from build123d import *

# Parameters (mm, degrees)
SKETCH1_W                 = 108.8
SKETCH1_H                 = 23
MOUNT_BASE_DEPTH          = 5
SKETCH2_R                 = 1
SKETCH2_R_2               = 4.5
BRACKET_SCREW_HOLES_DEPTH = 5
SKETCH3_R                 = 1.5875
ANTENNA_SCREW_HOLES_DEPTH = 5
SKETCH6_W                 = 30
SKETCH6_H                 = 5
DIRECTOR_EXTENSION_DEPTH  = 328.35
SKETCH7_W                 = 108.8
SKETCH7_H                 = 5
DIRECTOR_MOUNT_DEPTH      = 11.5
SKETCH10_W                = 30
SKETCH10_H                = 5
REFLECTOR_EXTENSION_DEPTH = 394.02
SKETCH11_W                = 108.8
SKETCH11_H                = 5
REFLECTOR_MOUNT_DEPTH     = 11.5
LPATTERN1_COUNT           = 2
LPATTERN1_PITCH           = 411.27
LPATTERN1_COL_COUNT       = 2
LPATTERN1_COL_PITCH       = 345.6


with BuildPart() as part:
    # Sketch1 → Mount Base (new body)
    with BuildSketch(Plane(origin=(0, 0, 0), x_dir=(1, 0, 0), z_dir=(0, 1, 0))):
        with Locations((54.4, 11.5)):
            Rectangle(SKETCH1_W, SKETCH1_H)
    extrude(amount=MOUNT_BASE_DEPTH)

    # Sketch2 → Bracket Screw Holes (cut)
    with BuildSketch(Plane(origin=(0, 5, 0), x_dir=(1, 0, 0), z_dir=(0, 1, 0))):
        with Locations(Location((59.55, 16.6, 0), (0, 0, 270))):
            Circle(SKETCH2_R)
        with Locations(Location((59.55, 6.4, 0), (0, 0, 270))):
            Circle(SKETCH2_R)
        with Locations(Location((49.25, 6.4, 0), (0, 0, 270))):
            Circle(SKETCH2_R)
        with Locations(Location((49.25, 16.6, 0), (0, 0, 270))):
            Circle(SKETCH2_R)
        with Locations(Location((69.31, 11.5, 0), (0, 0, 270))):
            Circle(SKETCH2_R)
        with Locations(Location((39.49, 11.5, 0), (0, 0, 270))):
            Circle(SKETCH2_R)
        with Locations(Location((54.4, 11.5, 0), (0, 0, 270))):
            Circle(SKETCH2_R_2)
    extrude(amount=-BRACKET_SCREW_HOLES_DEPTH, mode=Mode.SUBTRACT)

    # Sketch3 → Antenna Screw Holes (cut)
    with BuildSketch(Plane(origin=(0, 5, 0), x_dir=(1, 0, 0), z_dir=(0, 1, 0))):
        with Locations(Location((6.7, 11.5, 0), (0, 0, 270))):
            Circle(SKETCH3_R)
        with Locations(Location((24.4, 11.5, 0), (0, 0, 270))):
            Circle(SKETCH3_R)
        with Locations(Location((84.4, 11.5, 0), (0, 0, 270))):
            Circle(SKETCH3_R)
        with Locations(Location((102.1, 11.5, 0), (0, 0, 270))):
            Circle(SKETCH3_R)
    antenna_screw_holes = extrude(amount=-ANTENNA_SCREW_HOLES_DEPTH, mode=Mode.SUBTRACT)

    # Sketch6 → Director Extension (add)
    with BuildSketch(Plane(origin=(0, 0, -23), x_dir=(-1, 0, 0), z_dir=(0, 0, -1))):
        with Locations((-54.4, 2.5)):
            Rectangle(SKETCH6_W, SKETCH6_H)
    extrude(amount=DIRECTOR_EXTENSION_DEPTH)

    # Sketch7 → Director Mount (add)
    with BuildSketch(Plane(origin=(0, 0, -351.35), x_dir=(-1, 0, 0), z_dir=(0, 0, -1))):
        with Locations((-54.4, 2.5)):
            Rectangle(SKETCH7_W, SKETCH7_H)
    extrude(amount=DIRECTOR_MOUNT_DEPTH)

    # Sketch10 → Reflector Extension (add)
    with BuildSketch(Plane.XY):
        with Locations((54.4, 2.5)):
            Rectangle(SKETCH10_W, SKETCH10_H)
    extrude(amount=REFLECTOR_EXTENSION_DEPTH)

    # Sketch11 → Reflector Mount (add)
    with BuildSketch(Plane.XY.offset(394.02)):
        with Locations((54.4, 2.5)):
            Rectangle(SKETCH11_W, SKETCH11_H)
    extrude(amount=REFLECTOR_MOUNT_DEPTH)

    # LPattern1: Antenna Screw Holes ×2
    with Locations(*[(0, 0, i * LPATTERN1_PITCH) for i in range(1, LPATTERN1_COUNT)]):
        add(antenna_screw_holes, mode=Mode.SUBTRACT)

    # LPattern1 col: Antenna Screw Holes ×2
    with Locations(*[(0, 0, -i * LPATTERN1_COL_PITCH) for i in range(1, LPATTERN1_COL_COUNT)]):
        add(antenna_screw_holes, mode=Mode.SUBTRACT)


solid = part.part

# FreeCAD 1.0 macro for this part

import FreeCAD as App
import Part
import Sketcher
from FreeCAD import Vector

doc = App.newDocument("Part")
body = doc.addObject("PartDesign::Body", "Body")

# Sketch on XZ plane
sketch1 = body.newObject("Sketcher::SketchObject", "Sketch")
sketch1.AttachmentSupport = (doc.getObject("XZ_Plane"), [""])
sketch1.MapMode = "FlatFace"
sketch1.addGeometry(Part.LineSegment(Vector(0, -23, 0), Vector(0, 0, 0)), False)
sketch1.addGeometry(Part.LineSegment(Vector(0, 0, 0), Vector(109, 0, 0)), False)
sketch1.addGeometry(Part.LineSegment(Vector(109, 0, 0), Vector(109, -23, 0)), False)
sketch1.addGeometry(Part.LineSegment(Vector(109, -23, 0), Vector(0, -23, 0)), False)
sketch1.addConstraint(Sketcher.Constraint("Coincident", 0, 2, 1, 1))
sketch1.addConstraint(Sketcher.Constraint("Coincident", 1, 2, 2, 1))
sketch1.addConstraint(Sketcher.Constraint("Coincident", 2, 2, 3, 1))
sketch1.addConstraint(Sketcher.Constraint("Coincident", 3, 2, 0, 1))
sketch1.addConstraint(Sketcher.Constraint("Vertical", 0))
sketch1.addConstraint(Sketcher.Constraint("Horizontal", 1))
sketch1.addConstraint(Sketcher.Constraint("Vertical", 2))
sketch1.addConstraint(Sketcher.Constraint("Horizontal", 3))
sketch1.addConstraint(Sketcher.Constraint("Coincident", 0, 2, -1, 1))
sketch1.addConstraint(Sketcher.Constraint("DistanceY", 0, 1, 0, 2, 23.0))
sketch1.addConstraint(Sketcher.Constraint("DistanceX", 1, 1, 1, 2, 108.8))
pad1 = body.newObject("PartDesign::Pad", "Pad")
pad1.Profile = sketch1
pad1.Length = 5
pad1.Reversed = True

# Sketch on XZ plane
sketch2 = body.newObject("Sketcher::SketchObject", "Sketch001")
sketch2.AttachmentSupport = (doc.getObject("XZ_Plane"), [""])
sketch2.MapMode = "FlatFace"
sketch2.AttachmentOffset = App.Placement(Vector(0, 0, -5), App.Rotation())
sketch2.addGeometry(Part.Circle(Vector(59.5, -16.6, 0), Vector(0, 0, 1), 1), False)
sketch2.addGeometry(Part.Circle(Vector(59.5, -6.4, 0), Vector(0, 0, 1), 1), False)
sketch2.addGeometry(Part.Circle(Vector(49.2, -6.4, 0), Vector(0, 0, 1), 1), False)
sketch2.addGeometry(Part.Circle(Vector(49.2, -16.6, 0), Vector(0, 0, 1), 1), False)
sketch2.addGeometry(Part.Circle(Vector(69.3, -11.5, 0), Vector(0, 0, 1), 1), False)
sketch2.addGeometry(Part.Circle(Vector(39.5, -11.5, 0), Vector(0, 0, 1), 1), False)
sketch2.addGeometry(Part.Circle(Vector(54.4, -11.5, 0), Vector(0, 0, 1), 4.5), False)
sketch2.addConstraint(Sketcher.Constraint("Equal", 0, 1))
sketch2.addConstraint(Sketcher.Constraint("Equal", 1, 2))
sketch2.addConstraint(Sketcher.Constraint("Equal", 2, 3))
sketch2.addConstraint(Sketcher.Constraint("Equal", 3, 4))
sketch2.addConstraint(Sketcher.Constraint("Equal", 4, 5))
sketch2.addConstraint(Sketcher.Constraint("Horizontal", 1, 3, 2, 3))
sketch2.addConstraint(Sketcher.Constraint("Horizontal", 0, 3, 3, 3))
sketch2.addConstraint(Sketcher.Constraint("Horizontal", 4, 3, 5, 3))
sketch2.addConstraint(Sketcher.Constraint("Horizontal", 5, 3, 6, 3))
sketch2.addConstraint(Sketcher.Constraint("Vertical", 0, 3, 1, 3))
sketch2.addConstraint(Sketcher.Constraint("Vertical", 2, 3, 3, 3))
sketch2.addConstraint(Sketcher.Constraint("Diameter", 0, 2.0))
sketch2.addConstraint(Sketcher.Constraint("Diameter", 6, 9.0))
sketch2.addConstraint(Sketcher.Constraint("DistanceY", 0, 3, -1, 1, 16.6))
sketch2.addConstraint(Sketcher.Constraint("DistanceY", 1, 3, -1, 1, 6.4))
sketch2.addConstraint(Sketcher.Constraint("DistanceY", 4, 3, -1, 1, 11.5))
sketch2.addConstraint(Sketcher.Constraint("DistanceX", -1, 1, 6, 3, 54.4))
sketch2.addConstraint(Sketcher.Constraint("DistanceX", 2, 3, 1, 3, 10.3))
sketch2.addConstraint(Sketcher.Constraint("DistanceX", -1, 1, 0, 3, 59.55))
sketch2.addConstraint(Sketcher.Constraint("DistanceX", -1, 1, 4, 3, 69.31))
sketch2.addConstraint(Sketcher.Constraint("DistanceX", -1, 1, 5, 3, 39.49))
pocket1 = body.newObject("PartDesign::Pocket", "Pocket")
pocket1.Profile = sketch2
pocket1.Length = 5
pocket1.Reversed = True

# Sketch on XZ plane
sketch3 = body.newObject("Sketcher::SketchObject", "Sketch002")
sketch3.AttachmentSupport = (doc.getObject("XZ_Plane"), [""])
sketch3.MapMode = "FlatFace"
sketch3.AttachmentOffset = App.Placement(Vector(0, 0, -5), App.Rotation())
sketch3.addGeometry(Part.Circle(Vector(6.7, -11.5, 0), Vector(0, 0, 1), 1.6), False)
sketch3.addGeometry(Part.Circle(Vector(24.4, -11.5, 0), Vector(0, 0, 1), 1.6), False)
sketch3.addGeometry(Part.Circle(Vector(84.4, -11.5, 0), Vector(0, 0, 1), 1.6), False)
sketch3.addGeometry(Part.Circle(Vector(102.1, -11.5, 0), Vector(0, 0, 1), 1.6), False)
sketch3.addConstraint(Sketcher.Constraint("Equal", 0, 1))
sketch3.addConstraint(Sketcher.Constraint("Equal", 1, 2))
sketch3.addConstraint(Sketcher.Constraint("Equal", 2, 3))
sketch3.addConstraint(Sketcher.Constraint("Horizontal", 0, 3, 1, 3))
sketch3.addConstraint(Sketcher.Constraint("Horizontal", 1, 3, 2, 3))
sketch3.addConstraint(Sketcher.Constraint("Horizontal", 2, 3, 3, 3))
sketch3.addConstraint(Sketcher.Constraint("Diameter", 0, 3.175))
sketch3.addConstraint(Sketcher.Constraint("DistanceX", 1, 3, 2, 3, 60.0))
sketch3.addConstraint(Sketcher.Constraint("DistanceX", -1, 1, 0, 3, 6.7))
sketch3.addConstraint(Sketcher.Constraint("DistanceY", 0, 3, -1, 1, 11.5))
sketch3.addConstraint(Sketcher.Constraint("DistanceX", -1, 1, 1, 3, 24.4))
sketch3.addConstraint(Sketcher.Constraint("DistanceX", -1, 1, 3, 3, 102.1))
pocket2 = body.newObject("PartDesign::Pocket", "Pocket001")
pocket2.Profile = sketch3
pocket2.Length = 5
pocket2.Reversed = True

# Sketch on XY plane
sketch4 = body.newObject("Sketcher::SketchObject", "Sketch003")
sketch4.AttachmentSupport = (doc.getObject("XY_Plane"), [""])
sketch4.MapMode = "FlatFace"
sketch4.AttachmentOffset = App.Placement(Vector(0, 0, -23), App.Rotation())
sketch4.addGeometry(Part.LineSegment(Vector(69, 5, 0), Vector(69, 0, 0)), False)
sketch4.addGeometry(Part.LineSegment(Vector(69, 0, 0), Vector(39, 0, 0)), False)
sketch4.addGeometry(Part.LineSegment(Vector(39, 0, 0), Vector(39, 5, 0)), False)
sketch4.addGeometry(Part.LineSegment(Vector(39, 5, 0), Vector(69, 5, 0)), False)
sketch4.addConstraint(Sketcher.Constraint("Coincident", 0, 2, 1, 1))
sketch4.addConstraint(Sketcher.Constraint("Coincident", 1, 2, 2, 1))
sketch4.addConstraint(Sketcher.Constraint("Coincident", 2, 2, 3, 1))
sketch4.addConstraint(Sketcher.Constraint("Coincident", 3, 2, 0, 1))
sketch4.addConstraint(Sketcher.Constraint("Vertical", 0))
sketch4.addConstraint(Sketcher.Constraint("Horizontal", 1))
sketch4.addConstraint(Sketcher.Constraint("Vertical", 2))
sketch4.addConstraint(Sketcher.Constraint("Horizontal", 3))
sketch4.addConstraint(Sketcher.Constraint("PointOnObject", 0, 2, -1))
sketch4.addConstraint(Sketcher.Constraint("DistanceX", 1, 2, 1, 1, 30.0))
sketch4.addConstraint(Sketcher.Constraint("DistanceY", 0, 2, 0, 1, 5.0))
sketch4.addConstraint(Sketcher.Constraint("DistanceX", -1, 1, 0, 2, 69.4))
pad2 = body.newObject("PartDesign::Pad", "Pad001")
pad2.Profile = sketch4
pad2.Length = 328.35
pad2.Reversed = True

# Sketch on XY plane
sketch5 = body.newObject("Sketcher::SketchObject", "Sketch004")
sketch5.AttachmentSupport = (doc.getObject("XY_Plane"), [""])
sketch5.MapMode = "FlatFace"
sketch5.AttachmentOffset = App.Placement(Vector(0, 0, -351.35), App.Rotation())
sketch5.addGeometry(Part.LineSegment(Vector(109, 5, 0), Vector(109, 0, 0)), False)
sketch5.addGeometry(Part.LineSegment(Vector(109, 0, 0), Vector(0, 0, 0)), False)
sketch5.addGeometry(Part.LineSegment(Vector(0, 0, 0), Vector(0, 5, 0)), False)
sketch5.addGeometry(Part.LineSegment(Vector(0, 5, 0), Vector(109, 5, 0)), False)
sketch5.addConstraint(Sketcher.Constraint("Coincident", 0, 2, 1, 1))
sketch5.addConstraint(Sketcher.Constraint("Coincident", 1, 2, 2, 1))
sketch5.addConstraint(Sketcher.Constraint("Coincident", 2, 2, 3, 1))
sketch5.addConstraint(Sketcher.Constraint("Coincident", 3, 2, 0, 1))
sketch5.addConstraint(Sketcher.Constraint("Vertical", 0))
sketch5.addConstraint(Sketcher.Constraint("Horizontal", 1))
sketch5.addConstraint(Sketcher.Constraint("Vertical", 2))
sketch5.addConstraint(Sketcher.Constraint("Horizontal", 3))
sketch5.addConstraint(Sketcher.Constraint("Coincident", 1, 2, -1, 1))
sketch5.addConstraint(Sketcher.Constraint("DistanceY", 0, 2, 0, 1, 5.0))
sketch5.addConstraint(Sketcher.Constraint("DistanceX", 1, 2, 1, 1, 108.8))
pad3 = body.newObject("PartDesign::Pad", "Pad002")
pad3.Profile = sketch5
pad3.Length = 11.5
pad3.Reversed = True

# Sketch on XY plane
sketch6 = body.newObject("Sketcher::SketchObject", "Sketch005")
sketch6.AttachmentSupport = (doc.getObject("XY_Plane"), [""])
sketch6.MapMode = "FlatFace"
sketch6.addGeometry(Part.LineSegment(Vector(39, 5, 0), Vector(39, 0, 0)), False)
sketch6.addGeometry(Part.LineSegment(Vector(39, 0, 0), Vector(69, 0, 0)), False)
sketch6.addGeometry(Part.LineSegment(Vector(69, 0, 0), Vector(69, 5, 0)), False)
sketch6.addGeometry(Part.LineSegment(Vector(69, 5, 0), Vector(39, 5, 0)), False)
sketch6.addConstraint(Sketcher.Constraint("Coincident", 0, 2, 1, 1))
sketch6.addConstraint(Sketcher.Constraint("Coincident", 1, 2, 2, 1))
sketch6.addConstraint(Sketcher.Constraint("Coincident", 2, 2, 3, 1))
sketch6.addConstraint(Sketcher.Constraint("Coincident", 3, 2, 0, 1))
sketch6.addConstraint(Sketcher.Constraint("Vertical", 0))
sketch6.addConstraint(Sketcher.Constraint("Horizontal", 1))
sketch6.addConstraint(Sketcher.Constraint("Vertical", 2))
sketch6.addConstraint(Sketcher.Constraint("Horizontal", 3))
sketch6.addConstraint(Sketcher.Constraint("PointOnObject", 0, 2, -1))
sketch6.addConstraint(Sketcher.Constraint("DistanceX", 1, 1, 1, 2, 30.0))
sketch6.addConstraint(Sketcher.Constraint("DistanceY", 0, 2, 0, 1, 5.0))
sketch6.addConstraint(Sketcher.Constraint("DistanceX", -1, 1, 0, 2, 39.4))
pad4 = body.newObject("PartDesign::Pad", "Pad003")
pad4.Profile = sketch6
pad4.Length = 394.02

# Sketch on XY plane
sketch7 = body.newObject("Sketcher::SketchObject", "Sketch006")
sketch7.AttachmentSupport = (doc.getObject("XY_Plane"), [""])
sketch7.MapMode = "FlatFace"
sketch7.AttachmentOffset = App.Placement(Vector(0, 0, 394.02), App.Rotation())
sketch7.addGeometry(Part.LineSegment(Vector(0, 5, 0), Vector(0, 0, 0)), False)
sketch7.addGeometry(Part.LineSegment(Vector(0, 0, 0), Vector(109, 0, 0)), False)
sketch7.addGeometry(Part.LineSegment(Vector(109, 0, 0), Vector(109, 5, 0)), False)
sketch7.addGeometry(Part.LineSegment(Vector(109, 5, 0), Vector(0, 5, 0)), False)
sketch7.addConstraint(Sketcher.Constraint("Coincident", 0, 2, 1, 1))
sketch7.addConstraint(Sketcher.Constraint("Coincident", 1, 2, 2, 1))
sketch7.addConstraint(Sketcher.Constraint("Coincident", 2, 2, 3, 1))
sketch7.addConstraint(Sketcher.Constraint("Coincident", 3, 2, 0, 1))
sketch7.addConstraint(Sketcher.Constraint("Vertical", 0))
sketch7.addConstraint(Sketcher.Constraint("Horizontal", 1))
sketch7.addConstraint(Sketcher.Constraint("Vertical", 2))
sketch7.addConstraint(Sketcher.Constraint("Horizontal", 3))
sketch7.addConstraint(Sketcher.Constraint("Coincident", 0, 2, -1, 1))
sketch7.addConstraint(Sketcher.Constraint("DistanceY", 0, 2, 0, 1, 5.0))
sketch7.addConstraint(Sketcher.Constraint("DistanceX", 1, 1, 1, 2, 108.8))
pad5 = body.newObject("PartDesign::Pad", "Pad004")
pad5.Profile = sketch7
pad5.Length = 11.5
doc.recompute()

linearpattern = body.newObject("PartDesign::LinearPattern", "LinearPattern")
linearpattern.Originals = [pocket2]
linearpattern.Direction = (doc.getObject("Z_Axis"), [""])
linearpattern.Mode = "offset"
linearpattern.Offset = 411.27
linearpattern.Occurrences = 2
body.Tip = linearpattern
doc.recompute()

linearpattern2 = body.newObject("PartDesign::LinearPattern", "LinearPattern001")
linearpattern2.Originals = [pocket2]
linearpattern2.Direction = (doc.getObject("Z_Axis"), [""])
linearpattern2.Mode = "offset"
linearpattern2.Offset = 345.6
linearpattern2.Occurrences = 2
linearpattern2.Reversed = True
body.Tip = linearpattern2

doc.recompute()
